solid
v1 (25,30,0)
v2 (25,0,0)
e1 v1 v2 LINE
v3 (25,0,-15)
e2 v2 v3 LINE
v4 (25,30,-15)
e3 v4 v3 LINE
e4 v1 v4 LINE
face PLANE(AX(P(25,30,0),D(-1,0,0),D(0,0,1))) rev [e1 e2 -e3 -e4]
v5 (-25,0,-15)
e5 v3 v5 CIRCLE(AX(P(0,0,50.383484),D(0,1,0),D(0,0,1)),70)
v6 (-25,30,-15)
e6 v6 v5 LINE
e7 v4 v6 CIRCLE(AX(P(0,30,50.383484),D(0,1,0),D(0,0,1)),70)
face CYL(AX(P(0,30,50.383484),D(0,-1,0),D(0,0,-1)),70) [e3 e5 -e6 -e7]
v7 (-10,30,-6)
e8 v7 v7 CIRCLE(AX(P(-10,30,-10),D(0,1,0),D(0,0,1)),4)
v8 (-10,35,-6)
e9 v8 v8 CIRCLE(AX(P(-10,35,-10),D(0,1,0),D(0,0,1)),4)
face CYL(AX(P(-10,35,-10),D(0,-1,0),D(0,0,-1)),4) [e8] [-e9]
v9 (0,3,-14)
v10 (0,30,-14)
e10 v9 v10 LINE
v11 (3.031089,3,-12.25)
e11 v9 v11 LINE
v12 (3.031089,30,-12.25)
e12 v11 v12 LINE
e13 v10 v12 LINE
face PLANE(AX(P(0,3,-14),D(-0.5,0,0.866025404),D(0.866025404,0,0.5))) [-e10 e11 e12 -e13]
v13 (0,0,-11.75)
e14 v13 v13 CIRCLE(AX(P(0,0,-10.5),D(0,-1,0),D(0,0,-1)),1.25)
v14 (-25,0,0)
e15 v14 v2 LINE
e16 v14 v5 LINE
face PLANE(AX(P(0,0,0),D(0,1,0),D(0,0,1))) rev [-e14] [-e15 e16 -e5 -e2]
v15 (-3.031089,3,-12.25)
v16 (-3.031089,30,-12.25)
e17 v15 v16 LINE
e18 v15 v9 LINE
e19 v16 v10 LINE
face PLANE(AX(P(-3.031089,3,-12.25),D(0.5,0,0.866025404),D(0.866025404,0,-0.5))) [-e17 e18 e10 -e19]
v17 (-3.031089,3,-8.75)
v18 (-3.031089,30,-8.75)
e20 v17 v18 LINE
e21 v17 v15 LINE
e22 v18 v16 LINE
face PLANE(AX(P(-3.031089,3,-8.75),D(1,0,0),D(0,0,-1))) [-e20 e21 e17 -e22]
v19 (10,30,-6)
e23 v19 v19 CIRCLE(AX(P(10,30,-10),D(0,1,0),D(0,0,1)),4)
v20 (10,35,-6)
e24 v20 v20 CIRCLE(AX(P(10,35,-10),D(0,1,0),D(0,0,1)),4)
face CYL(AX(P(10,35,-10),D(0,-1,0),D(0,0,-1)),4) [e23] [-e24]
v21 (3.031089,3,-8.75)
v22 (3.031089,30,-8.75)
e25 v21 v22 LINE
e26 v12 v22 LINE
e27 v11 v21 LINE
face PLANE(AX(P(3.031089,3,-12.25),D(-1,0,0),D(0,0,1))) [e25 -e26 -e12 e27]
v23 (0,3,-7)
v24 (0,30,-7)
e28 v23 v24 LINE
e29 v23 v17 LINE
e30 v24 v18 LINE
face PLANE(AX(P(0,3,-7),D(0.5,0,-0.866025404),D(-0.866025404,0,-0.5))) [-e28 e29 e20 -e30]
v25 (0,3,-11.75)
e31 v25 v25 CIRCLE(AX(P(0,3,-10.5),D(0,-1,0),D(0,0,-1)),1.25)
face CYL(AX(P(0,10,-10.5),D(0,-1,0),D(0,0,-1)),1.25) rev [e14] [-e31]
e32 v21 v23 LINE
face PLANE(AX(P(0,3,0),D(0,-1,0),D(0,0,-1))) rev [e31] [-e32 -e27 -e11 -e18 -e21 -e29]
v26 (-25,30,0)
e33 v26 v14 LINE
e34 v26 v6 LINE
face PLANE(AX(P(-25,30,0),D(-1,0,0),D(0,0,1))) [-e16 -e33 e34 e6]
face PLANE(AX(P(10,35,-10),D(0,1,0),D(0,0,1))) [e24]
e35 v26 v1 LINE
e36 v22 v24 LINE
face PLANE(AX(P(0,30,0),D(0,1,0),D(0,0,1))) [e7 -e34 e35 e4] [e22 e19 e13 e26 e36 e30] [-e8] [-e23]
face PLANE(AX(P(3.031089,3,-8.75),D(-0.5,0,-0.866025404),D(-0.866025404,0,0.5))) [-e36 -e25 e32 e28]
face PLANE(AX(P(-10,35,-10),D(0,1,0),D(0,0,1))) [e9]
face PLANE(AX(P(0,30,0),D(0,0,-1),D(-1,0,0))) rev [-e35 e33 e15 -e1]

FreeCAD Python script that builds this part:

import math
import FreeCAD as App
import Part
import Sketcher

V = App.Vector
Q = App.Units.Quantity


def add_polygon(sketch, points):
    """Adds a closed chain of lines whose ends are joined by coincident constraints."""
    first, n = sketch.GeometryCount, len(points)
    for a, b in zip(points, points[1:] + points[:1]):
        sketch.addGeometry(Part.LineSegment(App.Vector(*a, 0), App.Vector(*b, 0)), False)
    for i in range(n):
        sketch.addConstraint(Sketcher.Constraint("Coincident", first + i, 2, first + (i + 1) % n, 1))

doc = App.newDocument("Part")
params = doc.addObject("Spreadsheet::Sheet", "Params")
for row, (alias, value) in enumerate([
    ("sketch1_radius", "70 mm"),
    ("sketch1_width", "50 mm"),
    ("sketch1_height", "15 mm"),
    ("pad1_length", "30 mm"),
    ("sketch2_diameter", "8 mm"),
    ("pad2_length", "5 mm"),
    ("sketch3_height", "3.5 mm"),
    ("pocket1_length", "27 mm"),
    ("sketch4_diameter", "2.5 mm"),
    ("pocket2_length", "10 mm"),
], start=1):
    params.set(f"A{row}", alias)
    params.set(f"B{row}", "=" + value)
    params.setAlias(f"B{row}", alias)

body = doc.addObject("PartDesign::Body", "Body")

# Sketch on XZ plane
sketch1 = body.newObject("Sketcher::SketchObject", "Sketch")
sketch1.AttachmentSupport = (doc.getObject("XZ_Plane"), [""])
sketch1.MapMode = "FlatFace"
sketch1.addGeometry([
    Part.LineSegment(V(-25, -15, 0), V(-25, 0, 0)),
    Part.LineSegment(V(-25, 0, 0), V(25, 0, 0)),
    Part.LineSegment(V(25, 0, 0), V(25, -15, 0)),
    Part.ArcOfCircle(Part.Circle(V(0, 50, 0), V(0, 0, 1), 70), math.radians(-111), math.radians(-69)),
], False)
sketch1.addConstraint([
    Sketcher.Constraint("Coincident", 0, 2, 1, 1),
    Sketcher.Constraint("Coincident", 1, 2, 2, 1),
    Sketcher.Constraint("Coincident", 2, 2, 3, 2),
    Sketcher.Constraint("Coincident", 3, 1, 0, 1),
    Sketcher.Constraint("Vertical", 0),
    Sketcher.Constraint("Horizontal", 1),
    Sketcher.Constraint("Vertical", 2),
    Sketcher.Constraint("Symmetric", 0, 2, 1, 2, -1, 1),
    Sketcher.Constraint("PointOnObject", 3, 3, -2),
    Sketcher.Constraint("Radius", 3, Q("70 mm")),
    Sketcher.Constraint("DistanceX", 1, 1, 1, 2, Q("50 mm")),
    Sketcher.Constraint("DistanceY", 0, 1, 0, 2, Q("15 mm")),
])
sketch1.setExpression("Constraints[9]", "Params.sketch1_radius")
sketch1.setExpression("Constraints[10]", "Params.sketch1_width")
sketch1.setExpression("Constraints[11]", "Params.sketch1_height")
pad1 = body.newObject("PartDesign::Pad", "Pad")
pad1.Profile = sketch1
pad1.setExpression("Length", "Params.pad1_length")
pad1.Reversed = True

# Sketch on XZ plane
sketch2 = body.newObject("Sketcher::SketchObject", "Sketch001")
sketch2.AttachmentSupport = (doc.getObject("XZ_Plane"), [""])
sketch2.MapMode = "FlatFace"
sketch2.AttachmentOffset = App.Placement(V(0, 0, -30), App.Rotation())
sketch2.addGeometry([
    Part.Circle(V(-10, -10, 0), V(0, 0, 1), 4),
    Part.Circle(V(10, -10, 0), V(0, 0, 1), 4),
], False)
sketch2.addConstraint([
    Sketcher.Constraint("Equal", 0, 1),
    Sketcher.Constraint("Symmetric", 0, 3, 1, 3, -2),
    Sketcher.Constraint("Diameter", 0, Q("8 mm")),
    Sketcher.Constraint("DistanceX", 0, 3, -1, 1, Q("10 mm")),
    Sketcher.Constraint("DistanceY", 0, 3, -1, 1, Q("10 mm")),
])
sketch2.setExpression("Constraints[2]", "Params.sketch2_diameter")
pad2 = body.newObject("PartDesign::Pad", "Pad001")
pad2.Profile = sketch2
pad2.setExpression("Length", "Params.pad2_length")
pad2.Reversed = True

# Sketch on XZ plane
sketch3 = body.newObject("Sketcher::SketchObject", "Sketch002")
sketch3.AttachmentSupport = (doc.getObject("XZ_Plane"), [""])
sketch3.MapMode = "FlatFace"
sketch3.AttachmentOffset = App.Placement(V(0, 0, -30), App.Rotation())
add_polygon(sketch3, [(0, -7), (-3, -8.8), (-3, -12.2), (0, -14), (3, -12.2), (3, -8.8)])  # lines 0-5
sketch3.addConstraint([
    Sketcher.Constraint("Vertical", 1),
    Sketcher.Constraint("Vertical", 4),
    Sketcher.Constraint("Symmetric", 1, 2, 3, 2, -2),
    Sketcher.Constraint("PointOnObject", 2, 2, -2),
    Sketcher.Constraint("PointOnObject", 5, 2, -2),
    Sketcher.Constraint("Parallel", 0, 3),
    Sketcher.Constraint("Parallel", 2, 5),
    Sketcher.Constraint("Angle", 0, Q("-150 deg")),
    Sketcher.Constraint("DistanceY", 1, 2, 1, 1, Q("3.5 mm")),
    Sketcher.Constraint("DistanceY", 2, 2, -1, 1, Q("14 mm")),
    Sketcher.Constraint("DistanceY", 5, 2, -1, 1, Q("7 mm")),
])
sketch3.setExpression("Constraints[14]", "Params.sketch3_height")
pocket1 = body.newObject("PartDesign::Pocket", "Pocket")
pocket1.Profile = sketch3
pocket1.setExpression("Length", "Params.pocket1_length")
pocket1.Reversed = True

# Sketch on XZ plane
sketch4 = body.newObject("Sketcher::SketchObject", "Sketch003")
sketch4.AttachmentSupport = (doc.getObject("XZ_Plane"), [""])
sketch4.MapMode = "FlatFace"
sketch4.addGeometry(Part.Circle(V(0, -10.5, 0), V(0, 0, 1), 1.2), False)
sketch4.addConstraint([
    Sketcher.Constraint("PointOnObject", 0, 3, -2),
    Sketcher.Constraint("Diameter", 0, Q("2.5 mm")),
    Sketcher.Constraint("DistanceY", 0, 3, -1, 1, Q("10.5 mm")),
])
sketch4.setExpression("Constraints[1]", "Params.sketch4_diameter")
pocket2 = body.newObject("PartDesign::Pocket", "Pocket001")
pocket2.Profile = sketch4
pocket2.setExpression("Length", "Params.pocket2_length")

doc.recompute()
